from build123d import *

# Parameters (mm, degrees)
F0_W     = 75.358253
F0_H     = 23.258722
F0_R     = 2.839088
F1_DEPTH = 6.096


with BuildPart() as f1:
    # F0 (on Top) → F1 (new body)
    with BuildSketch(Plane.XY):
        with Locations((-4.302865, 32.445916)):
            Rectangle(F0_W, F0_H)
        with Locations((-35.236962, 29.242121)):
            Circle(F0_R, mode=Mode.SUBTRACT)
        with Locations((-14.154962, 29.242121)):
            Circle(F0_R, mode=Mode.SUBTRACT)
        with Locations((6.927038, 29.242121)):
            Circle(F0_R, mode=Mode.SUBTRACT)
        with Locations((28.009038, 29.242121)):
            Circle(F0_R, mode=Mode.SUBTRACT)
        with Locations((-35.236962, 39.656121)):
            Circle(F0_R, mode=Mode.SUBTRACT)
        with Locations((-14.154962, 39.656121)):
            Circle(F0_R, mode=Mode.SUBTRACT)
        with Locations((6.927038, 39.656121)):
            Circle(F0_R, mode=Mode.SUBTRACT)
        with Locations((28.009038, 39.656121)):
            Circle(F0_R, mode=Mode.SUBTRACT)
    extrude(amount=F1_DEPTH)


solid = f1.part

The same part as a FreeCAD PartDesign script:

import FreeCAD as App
import Part
import Sketcher
Q = App.Units.Quantity


def add_polygon(sketch, points):
    """Adds a closed chain of lines whose ends are joined by coincident constraints."""
    first, n = sketch.GeometryCount, len(points)
    for a, b in zip(points, points[1:] + points[:1]):
        sketch.addGeometry(Part.LineSegment(App.Vector(*a, 0), App.Vector(*b, 0)), False)
    for i in range(n):
        sketch.addConstraint(Sketcher.Constraint("Coincident", first + i, 2, first + (i + 1) % n, 1))

doc = App.newDocument("Part")
body = doc.addObject("PartDesign::Body", "Body")

# Sketch on XY plane
sketch1 = body.newObject("Sketcher::SketchObject", "Sketch")
sketch1.AttachmentSupport = (doc.getObject("XY_Plane"), [""])
sketch1.MapMode = "FlatFace"
add_polygon(sketch1, [(-41.981991, 44.075277), (-41.981991, 20.816555), (33.376261, 20.816555), (33.376261, 44.075277)])  # lines 0-3
sketch1.addGeometry(Part.Circle(App.Vector(-35.236962, 29.242121, 0), App.Vector(0, 0, 1), 2.839088), False)  # 4
sketch1.addGeometry(Part.Circle(App.Vector(-14.154962, 29.242121, 0), App.Vector(0, 0, 1), 2.839088), False)  # 5
sketch1.addGeometry(Part.Circle(App.Vector(6.927038, 29.242121, 0), App.Vector(0, 0, 1), 2.839088), False)  # 6
sketch1.addGeometry(Part.Circle(App.Vector(28.009038, 29.242121, 0), App.Vector(0, 0, 1), 2.839088), False)  # 7
sketch1.addGeometry(Part.Circle(App.Vector(-35.236962, 39.656121, 0), App.Vector(0, 0, 1), 2.839088), False)  # 8
sketch1.addGeometry(Part.Circle(App.Vector(-14.154962, 39.656121, 0), App.Vector(0, 0, 1), 2.839088), False)  # 9
sketch1.addGeometry(Part.Circle(App.Vector(6.927038, 39.656121, 0), App.Vector(0, 0, 1), 2.839088), False)  # 10
sketch1.addGeometry(Part.Circle(App.Vector(28.009038, 39.656121, 0), App.Vector(0, 0, 1), 2.839088), False)  # 11
sketch1.addConstraint(Sketcher.Constraint("Vertical", 0))
sketch1.addConstraint(Sketcher.Constraint("Horizontal", 1))
sketch1.addConstraint(Sketcher.Constraint("Vertical", 2))
sketch1.addConstraint(Sketcher.Constraint("Horizontal", 3))
sketch1.addConstraint(Sketcher.Constraint("Equal", 4, 5))
sketch1.addConstraint(Sketcher.Constraint("Equal", 5, 6))
sketch1.addConstraint(Sketcher.Constraint("Equal", 6, 7))
sketch1.addConstraint(Sketcher.Constraint("Equal", 7, 8))
sketch1.addConstraint(Sketcher.Constraint("Equal", 8, 9))
sketch1.addConstraint(Sketcher.Constraint("Equal", 9, 10))
sketch1.addConstraint(Sketcher.Constraint("Equal", 10, 11))
sketch1.addConstraint(Sketcher.Constraint("Horizontal", 4, 3, 5, 3))
sketch1.addConstraint(Sketcher.Constraint("Horizontal", 5, 3, 6, 3))
sketch1.addConstraint(Sketcher.Constraint("Horizontal", 6, 3, 7, 3))
sketch1.addConstraint(Sketcher.Constraint("Horizontal", 8, 3, 9, 3))
sketch1.addConstraint(Sketcher.Constraint("Horizontal", 9, 3, 10, 3))
sketch1.addConstraint(Sketcher.Constraint("Horizontal", 10, 3, 11, 3))
sketch1.addConstraint(Sketcher.Constraint("Vertical", 4, 3, 8, 3))
sketch1.addConstraint(Sketcher.Constraint("Vertical", 5, 3, 9, 3))
sketch1.addConstraint(Sketcher.Constraint("Vertical", 6, 3, 10, 3))
sketch1.addConstraint(Sketcher.Constraint("Vertical", 7, 3, 11, 3))
sketch1.addConstraint(Sketcher.Constraint("DistanceX", 4, 3, 5, 3, Q("0.83 in")))
sketch1.addConstraint(Sketcher.Constraint("DistanceX", 5, 3, 6, 3, Q("0.83 in")))
sketch1.addConstraint(Sketcher.Constraint("DistanceX", 6, 3, 7, 3, Q("0.83 in")))
sketch1.addConstraint(Sketcher.Constraint("DistanceY", 4, 3, 8, 3, Q("0.41 in")))
sketch1.addConstraint(Sketcher.Constraint("Diameter", 4, Q("5.678176 mm")))
sketch1.addConstraint(Sketcher.Constraint("DistanceY", 0, 2, 0, 1, Q("23.258722 mm")))
sketch1.addConstraint(Sketcher.Constraint("DistanceX", 1, 1, 1, 2, Q("75.358253 mm")))
sketch1.addConstraint(Sketcher.Constraint("DistanceX", 4, 3, -1, 1, Q("35.236962 mm")))
sketch1.addConstraint(Sketcher.Constraint("DistanceY", -1, 1, 4, 3, Q("29.242121 mm")))
sketch1.addConstraint(Sketcher.Constraint("DistanceX", 0, 2, -1, 1, Q("41.981991 mm")))
sketch1.addConstraint(Sketcher.Constraint("DistanceY", -1, 1, 0, 2, Q("20.816555 mm")))
pad1 = body.newObject("PartDesign::Pad", "Pad")
pad1.Profile = sketch1
pad1.Length = Q("0.24 in")

doc.recompute()
